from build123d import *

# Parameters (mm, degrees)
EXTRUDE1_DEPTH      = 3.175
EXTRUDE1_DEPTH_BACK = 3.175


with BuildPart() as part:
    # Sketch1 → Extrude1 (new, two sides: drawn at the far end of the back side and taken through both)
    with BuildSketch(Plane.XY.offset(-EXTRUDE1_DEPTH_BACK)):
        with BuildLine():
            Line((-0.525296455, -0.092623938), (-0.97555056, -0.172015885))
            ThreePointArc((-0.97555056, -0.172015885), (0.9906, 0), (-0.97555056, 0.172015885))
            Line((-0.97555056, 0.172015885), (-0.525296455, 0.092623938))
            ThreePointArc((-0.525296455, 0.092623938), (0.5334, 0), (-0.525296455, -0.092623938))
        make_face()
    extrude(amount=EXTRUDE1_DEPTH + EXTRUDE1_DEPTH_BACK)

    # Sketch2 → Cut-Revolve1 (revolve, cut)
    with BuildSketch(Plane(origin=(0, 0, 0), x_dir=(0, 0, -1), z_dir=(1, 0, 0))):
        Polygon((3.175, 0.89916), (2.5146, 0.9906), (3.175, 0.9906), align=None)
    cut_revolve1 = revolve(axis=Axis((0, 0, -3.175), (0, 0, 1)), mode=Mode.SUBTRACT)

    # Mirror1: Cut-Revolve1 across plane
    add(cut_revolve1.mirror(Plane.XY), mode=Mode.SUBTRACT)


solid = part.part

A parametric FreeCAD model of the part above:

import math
import FreeCAD as App
import Part
import Sketcher
from FreeCAD import Vector
Q = App.Units.Quantity


def add_polygon(sketch, points):
    """Adds a closed chain of lines whose ends are joined by coincident constraints."""
    first, n = sketch.GeometryCount, len(points)
    for a, b in zip(points, points[1:] + points[:1]):
        sketch.addGeometry(Part.LineSegment(App.Vector(*a, 0), App.Vector(*b, 0)), False)
    for i in range(n):
        sketch.addConstraint(Sketcher.Constraint("Coincident", first + i, 2, first + (i + 1) % n, 1))

doc = App.newDocument("Part")
body = doc.addObject("PartDesign::Body", "Body")

sketch1 = body.newObject("Sketcher::SketchObject", "Sketch")
sketch1.AttachmentSupport = (doc.getObject("XY_Plane"), [""])
sketch1.MapMode = "FlatFace"
sketch1.addGeometry([
    Part.LineSegment(Vector(-0.53, -0.09, 0), Vector(-0.98, -0.17, 0)),
    Part.ArcOfCircle(Part.Circle(Vector(0, 0, 0), Vector(0, 0, 1), 0.99), math.radians(-170), math.radians(170)),
    Part.LineSegment(Vector(-0.98, 0.17, 0), Vector(-0.53, 0.09, 0)),
    Part.ArcOfCircle(Part.Circle(Vector(0, 0, 0), Vector(0, 0, 1), 0.53), math.radians(-170), math.radians(170)),
], False)
sketch1.addConstraint([
    Sketcher.Constraint("Coincident", 0, 2, 1, 1),
    Sketcher.Constraint("Coincident", 1, 2, 2, 1),
    Sketcher.Constraint("Coincident", 2, 2, 3, 2),
    Sketcher.Constraint("Coincident", 3, 1, 0, 1),
    Sketcher.Constraint("Coincident", 1, 3, -1, 1),
    Sketcher.Constraint("Coincident", 3, 3, -1, 1),
    Sketcher.Constraint("Vertical", 0, 2, 1, 2),
    Sketcher.Constraint("Vertical", 2, 2, 3, 1),
    Sketcher.Constraint("Angle", 0, Q("-170 deg")),
    Sketcher.Constraint("Radius", 1, Q("0.039 in")),
    Sketcher.Constraint("Radius", 3, Q("0.021 in")),
    Sketcher.Constraint("DistanceX", 0, 2, -1, 1, Q("0.975551 mm")),
])
pad1 = body.newObject("PartDesign::Pad", "Pad")
pad1.Profile = sketch1
pad1.Type = "TwoLengths"
pad1.Length = Q("0.125 in")
pad1.Length2 = Q("0.125 in")

sketch2 = body.newObject("Sketcher::SketchObject", "Sketch001")
sketch2.AttachmentSupport = (doc.getObject("YZ_Plane"), [""])
sketch2.MapMode = "FlatFace"
add_polygon(sketch2, [(0.99, -2.51), (0.9, -3.17), (0.99, -3.17)])
sketch2.addConstraint([
    Sketcher.Constraint("Horizontal", 1),
    Sketcher.Constraint("Vertical", 2),
    Sketcher.Constraint("DistanceY", 2, 1, 2, 2, Q("0.026 in")),
    Sketcher.Constraint("DistanceX", 1, 1, 1, 2, Q("0.0036 in")),
    Sketcher.Constraint("DistanceY", 0, 2, -1, 1, Q("0.125 in")),
    Sketcher.Constraint("DistanceX", -1, 1, 1, 2, Q("0.039 in")),
])
groove = body.newObject("PartDesign::Groove", "Groove")
groove.Profile = sketch2
groove.ReferenceAxis = (sketch2, ["V_Axis"])
groove.Angle = 360
doc.recompute()

mirrored = body.newObject("PartDesign::Mirrored", "Mirrored")
mirrored.Originals = [groove]
mirrored.MirrorPlane = (doc.getObject("XY_Plane"), [""])
body.Tip = mirrored

doc.recompute()
